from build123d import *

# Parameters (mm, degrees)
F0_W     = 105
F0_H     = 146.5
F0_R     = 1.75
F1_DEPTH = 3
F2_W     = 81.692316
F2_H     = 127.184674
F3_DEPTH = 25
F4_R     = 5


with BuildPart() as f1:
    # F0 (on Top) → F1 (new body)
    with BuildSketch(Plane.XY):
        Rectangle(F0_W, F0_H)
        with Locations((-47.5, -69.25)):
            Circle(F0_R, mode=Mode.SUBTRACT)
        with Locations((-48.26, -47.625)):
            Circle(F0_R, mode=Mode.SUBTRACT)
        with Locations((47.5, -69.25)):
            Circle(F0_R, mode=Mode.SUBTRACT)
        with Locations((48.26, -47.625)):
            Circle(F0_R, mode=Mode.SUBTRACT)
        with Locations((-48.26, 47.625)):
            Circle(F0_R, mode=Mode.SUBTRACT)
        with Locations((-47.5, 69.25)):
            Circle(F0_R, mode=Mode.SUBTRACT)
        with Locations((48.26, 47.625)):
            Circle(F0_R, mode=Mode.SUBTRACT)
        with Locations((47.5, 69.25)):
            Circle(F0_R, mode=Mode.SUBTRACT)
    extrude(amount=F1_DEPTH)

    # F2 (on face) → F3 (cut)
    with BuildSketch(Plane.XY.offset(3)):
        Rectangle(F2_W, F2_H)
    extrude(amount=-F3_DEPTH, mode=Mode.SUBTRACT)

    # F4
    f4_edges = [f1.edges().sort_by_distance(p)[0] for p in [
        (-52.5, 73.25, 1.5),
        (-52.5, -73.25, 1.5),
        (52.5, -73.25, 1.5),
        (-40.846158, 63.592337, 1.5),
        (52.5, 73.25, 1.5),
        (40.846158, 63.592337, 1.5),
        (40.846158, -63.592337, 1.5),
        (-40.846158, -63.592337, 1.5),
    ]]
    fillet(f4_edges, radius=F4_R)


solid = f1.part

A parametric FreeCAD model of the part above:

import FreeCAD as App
import Part
import Sketcher

V = App.Vector


def edges_at(feature, points):
    """Names of the edges that pass closest to the given points."""
    edges = feature.Shape.Edges
    near = lambda p: min(range(len(edges)), key=lambda i: edges[i].distToShape(Part.Vertex(*p))[0])
    return sorted({f"Edge{near(p) + 1}" for p in points})


def add_polygon(sketch, points):
    """Adds a closed chain of lines whose ends are joined by coincident constraints."""
    first, n = sketch.GeometryCount, len(points)
    for a, b in zip(points, points[1:] + points[:1]):
        sketch.addGeometry(Part.LineSegment(App.Vector(*a, 0), App.Vector(*b, 0)), False)
    for i in range(n):
        sketch.addConstraint(Sketcher.Constraint("Coincident", first + i, 2, first + (i + 1) % n, 1))

doc = App.newDocument("Part")
body = doc.addObject("PartDesign::Body", "Body")

# Sketch on XY plane
sketch1 = body.newObject("Sketcher::SketchObject", "Sketch")
sketch1.AttachmentSupport = (doc.getObject("XY_Plane"), [""])
sketch1.MapMode = "FlatFace"
add_polygon(sketch1, [(-52.5, 73.25), (-52.5, -73.25), (52.5, -73.25), (52.5, 73.25)])  # lines 0-3
sketch1.addGeometry(Part.Circle(V(-47.5, -69.25, 0), V(0, 0, 1), 1.75), False)  # 4
sketch1.addGeometry(Part.Circle(V(-48.26, -47.625, 0), V(0, 0, 1), 1.75), False)  # 5
sketch1.addGeometry(Part.Circle(V(47.5, -69.25, 0), V(0, 0, 1), 1.75), False)  # 6
sketch1.addGeometry(Part.Circle(V(48.26, -47.625, 0), V(0, 0, 1), 1.75), False)  # 7
sketch1.addGeometry(Part.Circle(V(-48.26, 47.625, 0), V(0, 0, 1), 1.75), False)  # 8
sketch1.addGeometry(Part.Circle(V(-47.5, 69.25, 0), V(0, 0, 1), 1.75), False)  # 9
sketch1.addGeometry(Part.Circle(V(48.26, 47.625, 0), V(0, 0, 1), 1.75), False)  # 10
sketch1.addGeometry(Part.Circle(V(47.5, 69.25, 0), V(0, 0, 1), 1.75), False)  # 11
sketch1.addConstraint(Sketcher.Constraint("Vertical", 0))
sketch1.addConstraint(Sketcher.Constraint("Horizontal", 1))
sketch1.addConstraint(Sketcher.Constraint("Vertical", 2))
sketch1.addConstraint(Sketcher.Constraint("Horizontal", 3))
sketch1.addConstraint(Sketcher.Constraint("Equal", 4, 5))
sketch1.addConstraint(Sketcher.Constraint("Equal", 5, 6))
sketch1.addConstraint(Sketcher.Constraint("Equal", 6, 7))
sketch1.addConstraint(Sketcher.Constraint("Equal", 7, 8))
sketch1.addConstraint(Sketcher.Constraint("Equal", 8, 9))
sketch1.addConstraint(Sketcher.Constraint("Equal", 9, 10))
sketch1.addConstraint(Sketcher.Constraint("Equal", 10, 11))
sketch1.addConstraint(Sketcher.Constraint("Symmetric", 7, 3, 8, 3, -1, 1))
sketch1.addConstraint(Sketcher.Constraint("Symmetric", 6, 3, 9, 3, -1, 1))
sketch1.addConstraint(Sketcher.Constraint("Symmetric", 5, 3, 10, 3, -1, 1))
sketch1.addConstraint(Sketcher.Constraint("Symmetric", 4, 3, 11, 3, -1, 1))
sketch1.addConstraint(Sketcher.Constraint("Symmetric", 0, 2, 2, 2, -1, 1))
sketch1.addConstraint(Sketcher.Constraint("Symmetric", 4, 3, 6, 3, -2))
sketch1.addConstraint(Sketcher.Constraint("Symmetric", 5, 3, 7, 3, -2))
sketch1.addConstraint(Sketcher.Constraint("Diameter", 4, 3.5))
sketch1.addConstraint(Sketcher.Constraint("DistanceX", 1, 1, 1, 2, 105.0))
sketch1.addConstraint(Sketcher.Constraint("DistanceY", 0, 2, 0, 1, 146.5))
sketch1.addConstraint(Sketcher.Constraint("DistanceX", 4, 3, 6, 3, 95.0))
sketch1.addConstraint(Sketcher.Constraint("DistanceY", 0, 2, 4, 3, 4.0))
sketch1.addConstraint(Sketcher.Constraint("DistanceX", 5, 3, -1, 1, 48.26))
sketch1.addConstraint(Sketcher.Constraint("DistanceY", 5, 3, 8, 3, 95.25))
pad1 = body.newObject("PartDesign::Pad", "Pad")
pad1.Profile = sketch1
pad1.Length = 3

# Sketch on XY plane
sketch2 = body.newObject("Sketcher::SketchObject", "Sketch001")
sketch2.AttachmentSupport = (doc.getObject("XY_Plane"), [""])
sketch2.MapMode = "FlatFace"
sketch2.AttachmentOffset = App.Placement(V(0, 0, 3), App.Rotation())
add_polygon(sketch2, [(-40.846158, 63.592337), (-40.846158, -63.592337), (40.846158, -63.592337), (40.846158, 63.592337)])  # lines 0-3
sketch2.addConstraint(Sketcher.Constraint("Vertical", 0))
sketch2.addConstraint(Sketcher.Constraint("Horizontal", 1))
sketch2.addConstraint(Sketcher.Constraint("Vertical", 2))
sketch2.addConstraint(Sketcher.Constraint("Horizontal", 3))
sketch2.addConstraint(Sketcher.Constraint("Symmetric", 0, 2, 2, 2, -1, 1))
sketch2.addConstraint(Sketcher.Constraint("DistanceX", 1, 1, 1, 2, 81.692316))
sketch2.addConstraint(Sketcher.Constraint("DistanceY", 0, 2, 0, 1, 127.184674))
pocket1 = body.newObject("PartDesign::Pocket", "Pocket")
pocket1.Profile = sketch2
pocket1.Length = 25
doc.recompute()

fillet = body.newObject("PartDesign::Fillet", "Fillet")
fillet.Base = (pocket1, edges_at(pocket1, [
    (-52.5, 73.25, 1.5),
    (-52.5, -73.25, 1.5),
    (52.5, -73.25, 1.5),
    (-40.846, 63.592, 1.5),
    (52.5, 73.25, 1.5),
    (40.846, 63.592, 1.5),
    (40.846, -63.592, 1.5),
    (-40.846, -63.592, 1.5),
]))
fillet.Radius = 5

doc.recompute()
